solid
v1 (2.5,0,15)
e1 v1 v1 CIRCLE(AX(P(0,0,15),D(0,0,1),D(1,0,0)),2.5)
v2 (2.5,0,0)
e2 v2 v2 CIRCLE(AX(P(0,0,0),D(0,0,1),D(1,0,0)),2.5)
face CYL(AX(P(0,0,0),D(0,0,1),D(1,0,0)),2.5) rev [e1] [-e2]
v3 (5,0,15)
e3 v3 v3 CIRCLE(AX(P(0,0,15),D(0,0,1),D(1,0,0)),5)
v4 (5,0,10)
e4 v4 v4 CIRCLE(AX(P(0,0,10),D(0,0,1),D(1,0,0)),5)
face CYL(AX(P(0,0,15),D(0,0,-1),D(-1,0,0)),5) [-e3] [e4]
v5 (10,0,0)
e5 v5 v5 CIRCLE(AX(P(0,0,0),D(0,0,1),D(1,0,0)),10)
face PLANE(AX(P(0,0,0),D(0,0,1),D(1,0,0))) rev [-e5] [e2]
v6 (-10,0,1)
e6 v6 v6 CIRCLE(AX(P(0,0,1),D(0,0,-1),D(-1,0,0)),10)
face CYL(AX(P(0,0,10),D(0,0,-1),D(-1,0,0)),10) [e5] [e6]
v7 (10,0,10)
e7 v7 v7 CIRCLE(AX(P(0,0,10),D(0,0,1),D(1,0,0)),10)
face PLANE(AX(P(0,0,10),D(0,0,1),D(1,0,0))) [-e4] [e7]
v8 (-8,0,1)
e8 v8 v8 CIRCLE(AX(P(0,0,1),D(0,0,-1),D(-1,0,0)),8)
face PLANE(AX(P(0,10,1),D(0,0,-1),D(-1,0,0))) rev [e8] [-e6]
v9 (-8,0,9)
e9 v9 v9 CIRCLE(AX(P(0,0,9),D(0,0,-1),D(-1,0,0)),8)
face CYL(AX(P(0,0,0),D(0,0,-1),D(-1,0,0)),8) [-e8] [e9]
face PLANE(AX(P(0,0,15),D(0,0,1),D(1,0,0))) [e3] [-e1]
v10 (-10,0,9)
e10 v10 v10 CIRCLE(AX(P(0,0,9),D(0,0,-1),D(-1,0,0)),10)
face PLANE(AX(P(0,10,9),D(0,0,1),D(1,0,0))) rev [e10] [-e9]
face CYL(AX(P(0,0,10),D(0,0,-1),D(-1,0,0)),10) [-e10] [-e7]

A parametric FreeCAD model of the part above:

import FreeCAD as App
import Part
import Sketcher

doc = App.newDocument("Part")
params = doc.addObject("Spreadsheet::Sheet", "Params")
for row, (alias, value) in enumerate([
    ("sketch1_diameter", "20 mm"),
    ("pad1_length", "10 mm"),
    ("sketch2_diameter", "10 mm"),
    ("pad2_length", "5 mm"),
    ("sketch3_diameter", "5 mm"),
    ("sketch4_width", "2 mm"),
    ("sketch4_height", "8 mm"),
    ("groove_angle", "360 deg"),
], start=1):
    params.set(f"A{row}", alias)
    params.set(f"B{row}", "=" + value)
    params.setAlias(f"B{row}", alias)

body = doc.addObject("PartDesign::Body", "Body")

sketch1 = body.newObject("Sketcher::SketchObject", "Sketch")
sketch1.AttachmentSupport = (doc.getObject("XY_Plane"), [""])
sketch1.MapMode = "FlatFace"
sketch1.addGeometry(Part.Circle(App.Vector(0, 0, 0), App.Vector(0, 0, 1), 10), False)
sketch1.addConstraint(Sketcher.Constraint("Coincident", 0, 3, -1, 1))
sketch1.addConstraint(Sketcher.Constraint("Diameter", 0, 20.0))
sketch1.setExpression("Constraints[1]", "Params.sketch1_diameter")
pad1 = body.newObject("PartDesign::Pad", "Pad")
pad1.Profile = sketch1
pad1.setExpression("Length", "Params.pad1_length")

sketch2 = body.newObject("Sketcher::SketchObject", "Sketch001")
sketch2.AttachmentSupport = (doc.getObject("XY_Plane"), [""])
sketch2.MapMode = "FlatFace"
sketch2.AttachmentOffset = App.Placement(App.Vector(0, 0, 10), App.Rotation())
sketch2.addGeometry(Part.Circle(App.Vector(0, 0, 0), App.Vector(0, 0, 1), 5), False)
sketch2.addConstraint(Sketcher.Constraint("Coincident", 0, 3, -1, 1))
sketch2.addConstraint(Sketcher.Constraint("Diameter", 0, 10.0))
sketch2.setExpression("Constraints[1]", "Params.sketch2_diameter")
pad2 = body.newObject("PartDesign::Pad", "Pad001")
pad2.Profile = sketch2
pad2.setExpression("Length", "Params.pad2_length")

sketch3 = body.newObject("Sketcher::SketchObject", "Sketch002")
sketch3.AttachmentSupport = (doc.getObject("XY_Plane"), [""])
sketch3.MapMode = "FlatFace"
sketch3.AttachmentOffset = App.Placement(App.Vector(0, 0, 15), App.Rotation())
sketch3.addGeometry(Part.Circle(App.Vector(0, 0, 0), App.Vector(0, 0, 1), 2.5), False)
sketch3.addConstraint(Sketcher.Constraint("Coincident", 0, 3, -1, 1))
sketch3.addConstraint(Sketcher.Constraint("Diameter", 0, 5.0))
sketch3.setExpression("Constraints[1]", "Params.sketch3_diameter")
pocket1 = body.newObject("PartDesign::Pocket", "Pocket")
pocket1.Profile = sketch3
pocket1.Type = "ThroughAll"

sketch4 = body.newObject("Sketcher::SketchObject", "Sketch003")
sketch4.AttachmentSupport = (doc.getObject("YZ_Plane"), [""])
sketch4.MapMode = "FlatFace"
sketch4.addGeometry(Part.LineSegment(App.Vector(10, 9, 0), App.Vector(8, 9, 0)), False)
sketch4.addGeometry(Part.LineSegment(App.Vector(8, 9, 0), App.Vector(8, 1, 0)), False)
sketch4.addGeometry(Part.LineSegment(App.Vector(8, 1, 0), App.Vector(10, 1, 0)), False)
sketch4.addGeometry(Part.LineSegment(App.Vector(10, 1, 0), App.Vector(10, 9, 0)), False)
sketch4.addConstraint(Sketcher.Constraint("Coincident", 0, 2, 1, 1))
sketch4.addConstraint(Sketcher.Constraint("Coincident", 1, 2, 2, 1))
sketch4.addConstraint(Sketcher.Constraint("Coincident", 2, 2, 3, 1))
sketch4.addConstraint(Sketcher.Constraint("Coincident", 3, 2, 0, 1))
sketch4.addConstraint(Sketcher.Constraint("Horizontal", 0))
sketch4.addConstraint(Sketcher.Constraint("Vertical", 1))
sketch4.addConstraint(Sketcher.Constraint("Horizontal", 2))
sketch4.addConstraint(Sketcher.Constraint("Vertical", 3))
sketch4.addConstraint(Sketcher.Constraint("DistanceX", 0, 2, 0, 1, 2.0))
sketch4.addConstraint(Sketcher.Constraint("DistanceY", 1, 2, 1, 1, 8.0))
sketch4.addConstraint(Sketcher.Constraint("DistanceX", -1, 1, 0, 2, 8.0))
sketch4.addConstraint(Sketcher.Constraint("DistanceY", -1, 1, 0, 2, 9.0))
sketch4.setExpression("Constraints[8]", "Params.sketch4_width")
sketch4.setExpression("Constraints[9]", "Params.sketch4_height")
groove = body.newObject("PartDesign::Groove", "Groove")
groove.Profile = sketch4
groove.ReferenceAxis = (sketch4, ["V_Axis"])
groove.setExpression("Angle", "Params.groove_angle")

doc.recompute()
